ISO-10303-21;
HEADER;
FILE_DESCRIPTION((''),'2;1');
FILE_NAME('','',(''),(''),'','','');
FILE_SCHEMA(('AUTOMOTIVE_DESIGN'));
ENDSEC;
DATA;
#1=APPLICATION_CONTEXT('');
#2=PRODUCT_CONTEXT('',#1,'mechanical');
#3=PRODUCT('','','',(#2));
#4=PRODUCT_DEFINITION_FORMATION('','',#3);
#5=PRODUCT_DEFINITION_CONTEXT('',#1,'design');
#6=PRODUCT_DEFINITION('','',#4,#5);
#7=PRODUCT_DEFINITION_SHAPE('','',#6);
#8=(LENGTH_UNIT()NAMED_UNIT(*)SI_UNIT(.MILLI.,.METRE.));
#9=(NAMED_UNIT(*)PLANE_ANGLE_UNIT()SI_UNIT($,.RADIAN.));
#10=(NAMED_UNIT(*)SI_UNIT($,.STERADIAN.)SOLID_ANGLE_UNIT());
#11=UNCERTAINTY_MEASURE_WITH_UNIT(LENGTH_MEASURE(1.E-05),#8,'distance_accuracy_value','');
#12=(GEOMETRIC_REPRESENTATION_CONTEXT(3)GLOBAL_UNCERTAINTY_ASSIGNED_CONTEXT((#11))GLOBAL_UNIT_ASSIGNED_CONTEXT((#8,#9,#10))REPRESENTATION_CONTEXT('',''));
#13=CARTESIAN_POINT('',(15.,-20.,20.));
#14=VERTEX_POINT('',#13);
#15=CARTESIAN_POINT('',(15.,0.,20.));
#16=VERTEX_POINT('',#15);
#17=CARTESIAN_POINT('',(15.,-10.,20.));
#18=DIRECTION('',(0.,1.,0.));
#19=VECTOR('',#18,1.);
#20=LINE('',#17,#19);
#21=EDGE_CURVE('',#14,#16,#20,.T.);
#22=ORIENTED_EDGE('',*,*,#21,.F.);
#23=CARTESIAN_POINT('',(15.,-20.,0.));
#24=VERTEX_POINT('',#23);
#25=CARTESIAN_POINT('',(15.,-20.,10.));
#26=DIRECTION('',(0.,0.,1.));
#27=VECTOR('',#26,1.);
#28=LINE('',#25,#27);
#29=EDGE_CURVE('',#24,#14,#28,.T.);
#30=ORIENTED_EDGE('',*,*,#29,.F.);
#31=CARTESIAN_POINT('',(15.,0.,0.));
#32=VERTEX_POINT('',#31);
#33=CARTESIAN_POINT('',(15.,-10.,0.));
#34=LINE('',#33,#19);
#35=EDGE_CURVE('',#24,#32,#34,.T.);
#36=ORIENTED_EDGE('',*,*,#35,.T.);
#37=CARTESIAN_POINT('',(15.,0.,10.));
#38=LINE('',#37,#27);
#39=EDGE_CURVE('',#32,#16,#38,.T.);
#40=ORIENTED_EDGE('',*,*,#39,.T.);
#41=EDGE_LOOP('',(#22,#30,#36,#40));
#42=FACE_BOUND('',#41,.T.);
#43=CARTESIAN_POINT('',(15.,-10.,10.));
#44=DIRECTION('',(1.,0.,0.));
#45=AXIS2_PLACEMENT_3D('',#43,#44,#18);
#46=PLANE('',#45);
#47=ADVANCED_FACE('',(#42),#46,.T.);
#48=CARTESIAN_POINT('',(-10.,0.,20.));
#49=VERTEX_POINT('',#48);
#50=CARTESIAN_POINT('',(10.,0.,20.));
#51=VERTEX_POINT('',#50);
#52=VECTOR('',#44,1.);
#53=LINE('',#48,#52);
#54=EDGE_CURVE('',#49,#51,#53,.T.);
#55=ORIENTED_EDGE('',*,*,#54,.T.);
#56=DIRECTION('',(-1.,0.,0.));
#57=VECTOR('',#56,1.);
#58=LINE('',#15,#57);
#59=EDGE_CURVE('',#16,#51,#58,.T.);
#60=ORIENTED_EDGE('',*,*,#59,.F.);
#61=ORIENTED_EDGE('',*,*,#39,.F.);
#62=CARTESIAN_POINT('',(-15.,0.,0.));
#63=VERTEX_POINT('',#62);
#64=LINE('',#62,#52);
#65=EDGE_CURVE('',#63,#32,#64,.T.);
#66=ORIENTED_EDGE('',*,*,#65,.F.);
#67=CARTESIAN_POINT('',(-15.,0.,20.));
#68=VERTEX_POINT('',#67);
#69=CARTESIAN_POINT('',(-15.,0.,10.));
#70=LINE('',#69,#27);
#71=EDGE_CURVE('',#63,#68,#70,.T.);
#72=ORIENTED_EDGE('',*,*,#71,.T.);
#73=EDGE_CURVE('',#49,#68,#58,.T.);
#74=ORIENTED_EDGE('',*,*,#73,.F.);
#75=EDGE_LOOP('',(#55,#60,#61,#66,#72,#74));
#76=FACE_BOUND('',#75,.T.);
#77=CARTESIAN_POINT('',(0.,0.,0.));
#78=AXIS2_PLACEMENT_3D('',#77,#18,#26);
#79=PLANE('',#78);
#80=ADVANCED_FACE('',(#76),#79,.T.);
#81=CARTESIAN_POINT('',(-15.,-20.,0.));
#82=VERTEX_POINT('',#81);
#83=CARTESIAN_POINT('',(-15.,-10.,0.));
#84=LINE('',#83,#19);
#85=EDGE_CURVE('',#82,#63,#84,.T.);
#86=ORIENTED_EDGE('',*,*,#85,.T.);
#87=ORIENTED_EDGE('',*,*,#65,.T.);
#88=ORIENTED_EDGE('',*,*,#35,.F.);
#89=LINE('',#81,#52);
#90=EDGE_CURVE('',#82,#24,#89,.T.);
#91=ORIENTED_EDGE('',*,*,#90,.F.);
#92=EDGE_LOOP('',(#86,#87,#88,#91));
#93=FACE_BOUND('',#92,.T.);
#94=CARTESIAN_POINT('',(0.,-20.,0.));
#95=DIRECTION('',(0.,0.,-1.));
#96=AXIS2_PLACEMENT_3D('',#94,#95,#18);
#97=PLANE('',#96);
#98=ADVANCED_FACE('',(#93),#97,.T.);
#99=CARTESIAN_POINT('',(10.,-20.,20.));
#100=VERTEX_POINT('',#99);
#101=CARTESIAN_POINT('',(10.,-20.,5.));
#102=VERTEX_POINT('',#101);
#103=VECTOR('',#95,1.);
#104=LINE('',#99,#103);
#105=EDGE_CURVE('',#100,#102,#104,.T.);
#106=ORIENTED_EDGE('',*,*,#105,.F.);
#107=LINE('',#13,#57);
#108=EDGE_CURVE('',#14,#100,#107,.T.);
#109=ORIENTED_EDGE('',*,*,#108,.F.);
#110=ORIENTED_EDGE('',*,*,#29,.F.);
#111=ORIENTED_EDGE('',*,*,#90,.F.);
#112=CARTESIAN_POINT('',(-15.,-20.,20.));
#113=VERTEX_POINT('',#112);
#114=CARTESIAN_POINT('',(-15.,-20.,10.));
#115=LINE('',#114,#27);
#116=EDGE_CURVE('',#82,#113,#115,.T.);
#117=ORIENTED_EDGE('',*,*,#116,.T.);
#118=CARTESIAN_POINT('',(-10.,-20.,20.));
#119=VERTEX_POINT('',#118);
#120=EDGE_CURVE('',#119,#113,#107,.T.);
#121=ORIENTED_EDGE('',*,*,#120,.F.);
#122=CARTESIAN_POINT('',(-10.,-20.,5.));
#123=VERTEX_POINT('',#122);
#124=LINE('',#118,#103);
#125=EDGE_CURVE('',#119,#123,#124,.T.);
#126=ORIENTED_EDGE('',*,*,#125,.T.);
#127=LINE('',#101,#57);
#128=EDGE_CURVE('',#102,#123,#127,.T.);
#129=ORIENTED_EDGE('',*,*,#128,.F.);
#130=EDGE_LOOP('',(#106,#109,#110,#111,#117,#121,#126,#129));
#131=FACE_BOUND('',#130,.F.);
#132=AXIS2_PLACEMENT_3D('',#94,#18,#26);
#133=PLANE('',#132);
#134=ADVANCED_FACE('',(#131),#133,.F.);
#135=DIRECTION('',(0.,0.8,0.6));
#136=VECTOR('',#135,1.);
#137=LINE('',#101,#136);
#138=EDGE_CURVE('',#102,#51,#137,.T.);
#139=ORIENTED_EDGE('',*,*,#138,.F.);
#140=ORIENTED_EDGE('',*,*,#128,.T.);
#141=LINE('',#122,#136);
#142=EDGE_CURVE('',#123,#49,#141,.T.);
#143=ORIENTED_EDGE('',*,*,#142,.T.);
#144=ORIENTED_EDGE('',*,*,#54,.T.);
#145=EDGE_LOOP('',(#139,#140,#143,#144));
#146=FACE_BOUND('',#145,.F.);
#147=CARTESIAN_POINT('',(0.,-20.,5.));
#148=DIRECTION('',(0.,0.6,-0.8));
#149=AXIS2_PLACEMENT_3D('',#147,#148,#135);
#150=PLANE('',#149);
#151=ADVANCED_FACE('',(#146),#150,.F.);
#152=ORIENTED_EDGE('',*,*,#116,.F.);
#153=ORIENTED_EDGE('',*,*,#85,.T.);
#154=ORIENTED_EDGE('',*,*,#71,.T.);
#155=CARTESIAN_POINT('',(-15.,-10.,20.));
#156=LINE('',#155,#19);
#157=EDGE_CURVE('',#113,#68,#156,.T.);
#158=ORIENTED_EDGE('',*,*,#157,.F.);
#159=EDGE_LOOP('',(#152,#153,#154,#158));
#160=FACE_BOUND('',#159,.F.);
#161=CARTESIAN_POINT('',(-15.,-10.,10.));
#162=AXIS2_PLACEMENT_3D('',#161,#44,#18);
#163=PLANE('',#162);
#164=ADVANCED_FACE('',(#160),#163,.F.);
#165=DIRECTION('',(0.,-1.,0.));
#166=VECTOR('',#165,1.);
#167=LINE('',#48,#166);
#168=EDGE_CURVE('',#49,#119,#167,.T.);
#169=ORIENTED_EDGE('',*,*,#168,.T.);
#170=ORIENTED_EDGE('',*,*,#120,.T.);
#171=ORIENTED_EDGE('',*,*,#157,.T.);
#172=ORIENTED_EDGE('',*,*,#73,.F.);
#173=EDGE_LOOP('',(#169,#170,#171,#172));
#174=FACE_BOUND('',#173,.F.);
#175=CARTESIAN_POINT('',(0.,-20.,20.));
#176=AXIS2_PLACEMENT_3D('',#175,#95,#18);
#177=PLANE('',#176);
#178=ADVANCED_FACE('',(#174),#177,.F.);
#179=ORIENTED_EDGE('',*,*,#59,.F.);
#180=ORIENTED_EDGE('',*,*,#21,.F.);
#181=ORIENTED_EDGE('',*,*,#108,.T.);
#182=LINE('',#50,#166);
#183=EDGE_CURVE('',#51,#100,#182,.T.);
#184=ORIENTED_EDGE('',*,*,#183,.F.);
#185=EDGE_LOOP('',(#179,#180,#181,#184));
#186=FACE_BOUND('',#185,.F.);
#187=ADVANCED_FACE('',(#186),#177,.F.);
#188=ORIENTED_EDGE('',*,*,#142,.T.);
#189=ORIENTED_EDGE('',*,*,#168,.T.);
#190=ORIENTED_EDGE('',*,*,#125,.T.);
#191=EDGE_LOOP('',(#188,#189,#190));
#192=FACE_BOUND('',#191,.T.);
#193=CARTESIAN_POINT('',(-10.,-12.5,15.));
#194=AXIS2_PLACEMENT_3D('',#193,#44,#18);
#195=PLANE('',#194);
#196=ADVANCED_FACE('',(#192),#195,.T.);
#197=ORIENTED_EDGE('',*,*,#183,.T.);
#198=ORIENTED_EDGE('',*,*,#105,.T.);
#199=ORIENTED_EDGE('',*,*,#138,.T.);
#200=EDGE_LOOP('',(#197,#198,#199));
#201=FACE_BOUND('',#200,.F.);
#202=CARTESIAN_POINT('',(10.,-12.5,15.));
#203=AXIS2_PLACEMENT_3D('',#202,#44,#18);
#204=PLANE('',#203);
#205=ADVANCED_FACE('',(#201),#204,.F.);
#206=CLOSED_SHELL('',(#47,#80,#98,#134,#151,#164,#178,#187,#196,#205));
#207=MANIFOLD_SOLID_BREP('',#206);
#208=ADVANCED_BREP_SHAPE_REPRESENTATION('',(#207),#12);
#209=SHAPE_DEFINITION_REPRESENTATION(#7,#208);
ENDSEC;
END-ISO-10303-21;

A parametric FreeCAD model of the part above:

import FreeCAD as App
import Part
import Sketcher
from FreeCAD import Vector
Q = App.Units.Quantity


def add_polygon(sketch, points):
    """Adds a closed chain of lines whose ends are joined by coincident constraints."""
    first, n = sketch.GeometryCount, len(points)
    for a, b in zip(points, points[1:] + points[:1]):
        sketch.addGeometry(Part.LineSegment(App.Vector(*a, 0), App.Vector(*b, 0)), False)
    for i in range(n):
        sketch.addConstraint(Sketcher.Constraint("Coincident", first + i, 2, first + (i + 1) % n, 1))

doc = App.newDocument("Part")
body = doc.addObject("PartDesign::Body", "Body")

# Sketch on YZ plane
sketch1 = body.newObject("Sketcher::SketchObject", "Sketch")
sketch1.AttachmentSupport = (doc.getObject("YZ_Plane"), [""])
sketch1.MapMode = "FlatFace"
add_polygon(sketch1, [(-20, 20), (-20, 0), (0, 0), (0, 20)])  # lines 0-3
sketch1.addConstraint(Sketcher.Constraint("Vertical", 0))
sketch1.addConstraint(Sketcher.Constraint("Horizontal", 1))
sketch1.addConstraint(Sketcher.Constraint("Vertical", 2))
sketch1.addConstraint(Sketcher.Constraint("Horizontal", 3))
sketch1.addConstraint(Sketcher.Constraint("Coincident", 1, 2, -1, 1))
sketch1.addConstraint(Sketcher.Constraint("Equal", 3, 0))
sketch1.addConstraint(Sketcher.Constraint("DistanceX", 1, 1, 1, 2, Q("20 mm")))
pad1 = body.newObject("PartDesign::Pad", "Pad")
pad1.Profile = sketch1
pad1.Length = 30
pad1.Midplane = True

# Sketch on YZ plane
sketch2 = body.newObject("Sketcher::SketchObject", "Sketch001")
sketch2.AttachmentSupport = (doc.getObject("YZ_Plane"), [""])
sketch2.MapMode = "FlatFace"
add_polygon(sketch2, [(-20, 5), (0, 20), (-20, 20)])  # lines 0-2
sketch2.addConstraint(Sketcher.Constraint("Horizontal", 1))
sketch2.addConstraint(Sketcher.Constraint("Vertical", 2))
sketch2.addConstraint(Sketcher.Constraint("PointOnObject", 0, 2, -2))
sketch2.addConstraint(Sketcher.Constraint("DistanceX", 1, 2, 1, 1, Q("20 mm")))
sketch2.addConstraint(Sketcher.Constraint("DistanceY", 2, 2, 2, 1, Q("15 mm")))
sketch2.addConstraint(Sketcher.Constraint("DistanceY", -1, 1, 0, 2, Q("20 mm")))
pocket1 = body.newObject("PartDesign::Pocket", "Pocket")
pocket1.Profile = sketch2
pocket1.Length = 20
pocket1.Midplane = True

doc.recompute()
